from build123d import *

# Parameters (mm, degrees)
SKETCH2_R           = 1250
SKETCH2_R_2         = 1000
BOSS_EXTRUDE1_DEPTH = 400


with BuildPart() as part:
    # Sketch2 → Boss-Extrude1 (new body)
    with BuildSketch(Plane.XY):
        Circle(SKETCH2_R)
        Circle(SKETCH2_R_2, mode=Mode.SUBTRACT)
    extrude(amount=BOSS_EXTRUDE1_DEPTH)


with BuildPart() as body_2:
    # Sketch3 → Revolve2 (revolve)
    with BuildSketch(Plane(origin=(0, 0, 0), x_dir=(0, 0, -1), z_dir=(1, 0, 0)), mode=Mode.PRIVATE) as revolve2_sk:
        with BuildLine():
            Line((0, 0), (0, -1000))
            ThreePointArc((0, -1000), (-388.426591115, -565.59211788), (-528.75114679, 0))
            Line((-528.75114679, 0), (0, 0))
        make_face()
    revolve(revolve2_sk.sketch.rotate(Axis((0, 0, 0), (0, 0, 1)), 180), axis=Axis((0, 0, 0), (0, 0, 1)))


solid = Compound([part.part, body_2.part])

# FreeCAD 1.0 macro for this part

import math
import FreeCAD as App
import Part
import Sketcher

doc = App.newDocument("Part")
body = doc.addObject("PartDesign::Body", "Body")

sketch1 = doc.addObject("Sketcher::SketchObject", "Sketch")
body.addObject(sketch1)
sketch1.AttachmentSupport = (doc.XY_Plane, [""])
sketch1.MapMode = "FlatFace"
sketch1.addGeometry([
    Part.Circle(App.Vector(0, 0, 0), App.Vector(0, 0, 1), 1250),
    Part.Circle(App.Vector(0, 0, 0), App.Vector(0, 0, 1), 1000),
], False)
sketch1.addConstraint([
    Sketcher.Constraint("Coincident", 0, 3, -1, 1),
    Sketcher.Constraint("Coincident", 1, 3, -1, 1),
    Sketcher.Constraint("Diameter", 0, 2500.0),
    Sketcher.Constraint("Diameter", 1, 2000.0),
])
pad1 = doc.addObject("PartDesign::Pad", "Pad")
body.addObject(pad1)
pad1.Profile = sketch1
pad1.Length = 400
body2 = doc.addObject("PartDesign::Body", "Body001")

sketch2 = doc.addObject("Sketcher::SketchObject", "Sketch001")
body2.addObject(sketch2)
sketch2.AttachmentSupport = (doc.getObject("YZ_Plane001"), [""])
sketch2.MapMode = "FlatFace"
sketch2.addGeometry([
    Part.LineSegment(App.Vector(-1000, 0, 0), App.Vector(0, 0, 0)),
    Part.LineSegment(App.Vector(0, 0, 0), App.Vector(0, 529, 0)),
    Part.ArcOfCircle(Part.Circle(App.Vector(0, -681, 0), App.Vector(0, 0, 1), 1210), math.radians(90), math.radians(146)),
], False)
sketch2.addConstraint([
    Sketcher.Constraint("Coincident", 0, 2, 1, 1),
    Sketcher.Constraint("Coincident", 1, 2, 2, 1),
    Sketcher.Constraint("Coincident", 2, 2, 0, 1),
    Sketcher.Constraint("Horizontal", 0),
    Sketcher.Constraint("Vertical", 1),
    Sketcher.Constraint("Coincident", 0, 2, -1, 1),
    Sketcher.Constraint("PointOnObject", 2, 3, -2),
    Sketcher.Constraint("Radius", 2, 1210.0),
    Sketcher.Constraint("DistanceX", 0, 1, 0, 2, 1000.0),
])
revolution = doc.addObject("PartDesign::Revolution", "Revolution")
body2.addObject(revolution)
revolution.Profile = sketch2
revolution.ReferenceAxis = (sketch2, ["V_Axis"])
revolution.Angle = 360

doc.recompute()
